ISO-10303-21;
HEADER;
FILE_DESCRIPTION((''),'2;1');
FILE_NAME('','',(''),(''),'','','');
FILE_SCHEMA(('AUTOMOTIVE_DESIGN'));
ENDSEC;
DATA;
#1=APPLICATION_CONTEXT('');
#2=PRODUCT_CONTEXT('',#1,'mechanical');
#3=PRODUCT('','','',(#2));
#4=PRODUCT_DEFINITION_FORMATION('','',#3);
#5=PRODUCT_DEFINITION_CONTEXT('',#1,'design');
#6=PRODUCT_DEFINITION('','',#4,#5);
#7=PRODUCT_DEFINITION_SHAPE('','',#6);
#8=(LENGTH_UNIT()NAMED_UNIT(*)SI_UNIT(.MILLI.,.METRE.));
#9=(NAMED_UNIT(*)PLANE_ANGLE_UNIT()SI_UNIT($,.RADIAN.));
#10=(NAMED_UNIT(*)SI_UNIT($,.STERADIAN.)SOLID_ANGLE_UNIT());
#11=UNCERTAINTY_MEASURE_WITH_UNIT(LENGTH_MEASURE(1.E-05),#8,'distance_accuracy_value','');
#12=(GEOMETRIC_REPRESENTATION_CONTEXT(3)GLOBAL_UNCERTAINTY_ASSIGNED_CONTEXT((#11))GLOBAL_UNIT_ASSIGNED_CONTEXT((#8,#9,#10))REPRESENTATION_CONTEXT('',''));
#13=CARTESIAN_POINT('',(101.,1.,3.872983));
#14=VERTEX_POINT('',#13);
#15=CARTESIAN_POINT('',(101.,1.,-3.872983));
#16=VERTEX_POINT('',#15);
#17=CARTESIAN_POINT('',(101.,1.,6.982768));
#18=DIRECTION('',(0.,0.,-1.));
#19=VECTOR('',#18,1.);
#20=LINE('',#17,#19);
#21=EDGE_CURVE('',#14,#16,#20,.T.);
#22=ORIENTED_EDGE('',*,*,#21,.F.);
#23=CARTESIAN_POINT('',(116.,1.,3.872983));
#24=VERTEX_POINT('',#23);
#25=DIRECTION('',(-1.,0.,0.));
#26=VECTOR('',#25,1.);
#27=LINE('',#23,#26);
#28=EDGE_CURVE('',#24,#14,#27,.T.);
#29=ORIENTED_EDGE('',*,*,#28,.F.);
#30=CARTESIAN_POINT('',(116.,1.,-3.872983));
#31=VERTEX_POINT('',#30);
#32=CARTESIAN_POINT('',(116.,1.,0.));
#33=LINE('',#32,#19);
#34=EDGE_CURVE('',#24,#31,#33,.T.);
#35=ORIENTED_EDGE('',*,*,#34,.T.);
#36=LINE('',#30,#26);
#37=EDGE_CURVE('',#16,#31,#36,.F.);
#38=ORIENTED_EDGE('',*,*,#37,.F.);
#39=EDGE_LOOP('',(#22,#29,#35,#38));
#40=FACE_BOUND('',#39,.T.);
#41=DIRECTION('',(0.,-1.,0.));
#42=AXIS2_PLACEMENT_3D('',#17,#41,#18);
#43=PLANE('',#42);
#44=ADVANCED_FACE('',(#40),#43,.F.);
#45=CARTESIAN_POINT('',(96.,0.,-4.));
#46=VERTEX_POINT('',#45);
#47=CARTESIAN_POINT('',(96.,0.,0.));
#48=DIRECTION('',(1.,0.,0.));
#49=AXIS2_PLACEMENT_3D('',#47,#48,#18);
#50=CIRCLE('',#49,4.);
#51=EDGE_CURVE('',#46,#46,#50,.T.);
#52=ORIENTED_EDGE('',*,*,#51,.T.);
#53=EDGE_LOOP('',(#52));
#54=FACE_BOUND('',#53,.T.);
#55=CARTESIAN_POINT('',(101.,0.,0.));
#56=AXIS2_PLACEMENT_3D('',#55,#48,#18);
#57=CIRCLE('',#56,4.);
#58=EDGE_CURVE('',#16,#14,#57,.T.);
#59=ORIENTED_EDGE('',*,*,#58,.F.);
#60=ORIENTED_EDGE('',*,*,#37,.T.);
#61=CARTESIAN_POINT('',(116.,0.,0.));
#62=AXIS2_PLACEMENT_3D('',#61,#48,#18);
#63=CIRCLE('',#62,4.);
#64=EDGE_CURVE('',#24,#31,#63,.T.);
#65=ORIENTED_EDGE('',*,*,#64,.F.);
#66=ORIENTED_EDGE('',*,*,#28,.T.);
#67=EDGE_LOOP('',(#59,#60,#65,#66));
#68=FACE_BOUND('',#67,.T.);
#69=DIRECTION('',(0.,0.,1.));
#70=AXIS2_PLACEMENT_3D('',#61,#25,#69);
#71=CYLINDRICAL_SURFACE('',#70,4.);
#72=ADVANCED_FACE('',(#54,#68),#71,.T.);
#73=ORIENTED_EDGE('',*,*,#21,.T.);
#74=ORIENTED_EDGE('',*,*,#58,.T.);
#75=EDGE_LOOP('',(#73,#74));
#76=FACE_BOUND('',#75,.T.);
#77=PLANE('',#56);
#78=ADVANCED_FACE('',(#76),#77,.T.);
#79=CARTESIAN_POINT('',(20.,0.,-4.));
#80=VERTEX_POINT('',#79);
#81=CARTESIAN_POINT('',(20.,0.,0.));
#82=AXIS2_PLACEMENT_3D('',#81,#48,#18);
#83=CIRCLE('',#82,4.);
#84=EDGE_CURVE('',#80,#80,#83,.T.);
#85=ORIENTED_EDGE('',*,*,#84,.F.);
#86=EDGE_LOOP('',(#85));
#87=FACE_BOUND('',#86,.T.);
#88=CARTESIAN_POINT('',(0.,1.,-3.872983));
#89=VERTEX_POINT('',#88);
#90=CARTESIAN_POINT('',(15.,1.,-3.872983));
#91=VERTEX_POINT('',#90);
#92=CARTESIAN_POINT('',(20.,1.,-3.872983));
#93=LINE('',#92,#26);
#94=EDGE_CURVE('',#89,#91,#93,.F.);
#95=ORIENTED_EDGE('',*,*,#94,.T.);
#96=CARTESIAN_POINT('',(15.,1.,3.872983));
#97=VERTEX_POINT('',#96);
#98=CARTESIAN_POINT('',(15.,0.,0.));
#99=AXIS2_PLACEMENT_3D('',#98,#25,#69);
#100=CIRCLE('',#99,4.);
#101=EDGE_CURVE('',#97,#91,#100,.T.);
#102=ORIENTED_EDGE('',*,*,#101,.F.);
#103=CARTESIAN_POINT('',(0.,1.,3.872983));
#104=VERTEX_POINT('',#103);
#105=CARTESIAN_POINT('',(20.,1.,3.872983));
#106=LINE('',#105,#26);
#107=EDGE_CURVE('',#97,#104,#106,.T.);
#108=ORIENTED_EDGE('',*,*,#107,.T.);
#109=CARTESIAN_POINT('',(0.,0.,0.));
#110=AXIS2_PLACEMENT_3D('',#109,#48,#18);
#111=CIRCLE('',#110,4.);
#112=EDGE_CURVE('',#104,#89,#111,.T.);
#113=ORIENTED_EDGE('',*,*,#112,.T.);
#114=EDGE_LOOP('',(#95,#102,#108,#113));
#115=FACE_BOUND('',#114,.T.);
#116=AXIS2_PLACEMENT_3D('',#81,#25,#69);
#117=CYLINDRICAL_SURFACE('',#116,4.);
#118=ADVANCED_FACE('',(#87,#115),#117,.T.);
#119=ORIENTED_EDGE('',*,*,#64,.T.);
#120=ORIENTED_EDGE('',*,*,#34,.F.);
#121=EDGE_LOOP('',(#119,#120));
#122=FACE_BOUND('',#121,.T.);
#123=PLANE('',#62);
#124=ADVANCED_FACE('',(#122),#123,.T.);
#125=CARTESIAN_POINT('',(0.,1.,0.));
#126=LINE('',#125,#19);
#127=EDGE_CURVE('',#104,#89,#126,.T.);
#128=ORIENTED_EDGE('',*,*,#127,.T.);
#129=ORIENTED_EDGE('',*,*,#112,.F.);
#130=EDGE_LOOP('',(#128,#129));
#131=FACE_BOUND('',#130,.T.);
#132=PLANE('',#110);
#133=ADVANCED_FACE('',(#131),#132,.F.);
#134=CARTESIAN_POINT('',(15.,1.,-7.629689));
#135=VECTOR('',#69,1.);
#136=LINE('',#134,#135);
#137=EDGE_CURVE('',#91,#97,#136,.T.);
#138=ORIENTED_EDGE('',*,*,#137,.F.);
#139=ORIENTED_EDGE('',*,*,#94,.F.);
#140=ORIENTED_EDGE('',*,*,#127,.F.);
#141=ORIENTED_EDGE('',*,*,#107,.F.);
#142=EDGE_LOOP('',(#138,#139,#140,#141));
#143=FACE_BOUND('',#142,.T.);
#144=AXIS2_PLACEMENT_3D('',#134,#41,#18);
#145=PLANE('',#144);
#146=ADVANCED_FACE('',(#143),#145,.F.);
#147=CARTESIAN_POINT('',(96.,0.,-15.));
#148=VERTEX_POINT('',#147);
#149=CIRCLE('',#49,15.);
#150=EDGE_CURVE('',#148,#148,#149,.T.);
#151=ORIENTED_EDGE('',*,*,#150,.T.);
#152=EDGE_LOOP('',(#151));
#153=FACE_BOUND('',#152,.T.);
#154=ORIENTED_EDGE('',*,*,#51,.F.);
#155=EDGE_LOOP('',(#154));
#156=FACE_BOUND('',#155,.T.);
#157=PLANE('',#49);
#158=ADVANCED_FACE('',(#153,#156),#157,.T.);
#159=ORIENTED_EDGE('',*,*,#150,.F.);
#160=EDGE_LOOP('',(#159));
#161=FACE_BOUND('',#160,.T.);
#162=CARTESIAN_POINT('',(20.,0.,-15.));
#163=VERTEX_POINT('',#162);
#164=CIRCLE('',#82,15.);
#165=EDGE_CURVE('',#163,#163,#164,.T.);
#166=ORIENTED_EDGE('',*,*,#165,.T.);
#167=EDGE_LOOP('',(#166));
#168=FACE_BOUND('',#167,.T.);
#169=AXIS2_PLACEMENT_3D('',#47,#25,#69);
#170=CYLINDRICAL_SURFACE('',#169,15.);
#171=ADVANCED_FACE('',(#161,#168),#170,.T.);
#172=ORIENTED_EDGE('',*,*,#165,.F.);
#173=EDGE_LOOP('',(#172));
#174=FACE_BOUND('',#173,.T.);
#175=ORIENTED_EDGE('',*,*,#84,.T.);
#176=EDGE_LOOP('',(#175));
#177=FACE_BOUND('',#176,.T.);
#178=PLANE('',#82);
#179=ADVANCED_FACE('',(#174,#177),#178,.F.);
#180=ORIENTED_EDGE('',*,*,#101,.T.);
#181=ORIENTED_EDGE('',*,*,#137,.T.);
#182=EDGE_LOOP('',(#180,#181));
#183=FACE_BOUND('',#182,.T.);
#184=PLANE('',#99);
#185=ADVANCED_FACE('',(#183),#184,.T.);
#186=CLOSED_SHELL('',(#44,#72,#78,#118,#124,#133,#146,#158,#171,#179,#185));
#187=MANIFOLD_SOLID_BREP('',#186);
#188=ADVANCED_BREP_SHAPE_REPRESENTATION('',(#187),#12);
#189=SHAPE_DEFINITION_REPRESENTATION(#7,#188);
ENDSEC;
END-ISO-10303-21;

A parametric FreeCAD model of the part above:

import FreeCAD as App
import Part
import Sketcher

V = App.Vector

doc = App.newDocument("Part")
body = doc.addObject("PartDesign::Body", "Body")

# Sketch on YZ plane
sketch1 = doc.addObject("Sketcher::SketchObject", "Sketch")
body.addObject(sketch1)
sketch1.AttachmentSupport = (doc.YZ_Plane, [""])
sketch1.MapMode = "FlatFace"
sketch1.addGeometry(Part.Circle(V(0, 0, 0), V(0, 0, 1), 4), False)
sketch1.addConstraint([
    Sketcher.Constraint("Coincident", 0, 3, -1, 1),
    Sketcher.Constraint("Diameter", 0, 8.0),
])
pad1 = doc.addObject("PartDesign::Pad", "Pad")
body.addObject(pad1)
pad1.Profile = sketch1
pad1.Length = 20

# Sketch on YZ plane
sketch2 = doc.addObject("Sketcher::SketchObject", "Sketch001")
body.addObject(sketch2)
sketch2.AttachmentSupport = (doc.YZ_Plane, [""])
sketch2.MapMode = "FlatFace"
sketch2.AttachmentOffset = App.Placement(V(0, 0, 20), App.Rotation())
sketch2.addGeometry(Part.Circle(V(0, 0, 0), V(0, 0, 1), 15), False)
sketch2.addConstraint([
    Sketcher.Constraint("Coincident", 0, 3, -1, 1),
    Sketcher.Constraint("Diameter", 0, 30.0),
])
pad2 = doc.addObject("PartDesign::Pad", "Pad001")
body.addObject(pad2)
pad2.Profile = sketch2
pad2.Length = 76

# Sketch on YZ plane
sketch3 = doc.addObject("Sketcher::SketchObject", "Sketch002")
body.addObject(sketch3)
sketch3.AttachmentSupport = (doc.YZ_Plane, [""])
sketch3.MapMode = "FlatFace"
sketch3.AttachmentOffset = App.Placement(V(0, 0, 96), App.Rotation())
sketch3.addGeometry(Part.Circle(V(0, 0, 0), V(0, 0, 1), 4), False)
sketch3.addConstraint([
    Sketcher.Constraint("Coincident", 0, 3, -1, 1),
    Sketcher.Constraint("Diameter", 0, 8.0),
])
pad3 = doc.addObject("PartDesign::Pad", "Pad002")
body.addObject(pad3)
pad3.Profile = sketch3
pad3.Length = 20

# Sketch on YZ plane
sketch4 = doc.addObject("Sketcher::SketchObject", "Sketch003")
body.addObject(sketch4)
sketch4.AttachmentSupport = (doc.YZ_Plane, [""])
sketch4.MapMode = "FlatFace"
sketch4.addGeometry([
    Part.LineSegment(V(4, -7.6, 0), V(1, -7.6, 0)),
    Part.LineSegment(V(1, -7.6, 0), V(1, 7.3, 0)),
    Part.LineSegment(V(1, 7.3, 0), V(4, 7.3, 0)),
    Part.LineSegment(V(4, 7.3, 0), V(4, -7.6, 0)),
], False)
sketch4.addConstraint([
    Sketcher.Constraint("Coincident", 0, 2, 1, 1),
    Sketcher.Constraint("Coincident", 1, 2, 2, 1),
    Sketcher.Constraint("Coincident", 2, 2, 3, 1),
    Sketcher.Constraint("Coincident", 3, 2, 0, 1),
    Sketcher.Constraint("Horizontal", 0),
    Sketcher.Constraint("Vertical", 1),
    Sketcher.Constraint("Horizontal", 2),
    Sketcher.Constraint("Vertical", 3),
    Sketcher.Constraint("DistanceX", 0, 2, 0, 1, 3.0),
    Sketcher.Constraint("DistanceX", -1, 1, 0, 2, 1.0),
    Sketcher.Constraint("DistanceY", 1, 1, 1, 2, 14.978284),
    Sketcher.Constraint("DistanceY", 0, 2, -1, 1, 7.629689),
])
pocket1 = doc.addObject("PartDesign::Pocket", "Pocket")
body.addObject(pocket1)
pocket1.Profile = sketch4
pocket1.Length = 15
pocket1.Reversed = True

# Sketch on YZ plane
sketch5 = doc.addObject("Sketcher::SketchObject", "Sketch004")
body.addObject(sketch5)
sketch5.AttachmentSupport = (doc.YZ_Plane, [""])
sketch5.MapMode = "FlatFace"
sketch5.AttachmentOffset = App.Placement(V(0, 0, 116), App.Rotation())
sketch5.addGeometry([
    Part.LineSegment(V(4, 7, 0), V(1, 7, 0)),
    Part.LineSegment(V(1, 7, 0), V(1, -7.3, 0)),
    Part.LineSegment(V(1, -7.3, 0), V(4, -7.3, 0)),
    Part.LineSegment(V(4, -7.3, 0), V(4, 7, 0)),
], False)
sketch5.addConstraint([
    Sketcher.Constraint("Coincident", 0, 2, 1, 1),
    Sketcher.Constraint("Coincident", 1, 2, 2, 1),
    Sketcher.Constraint("Coincident", 2, 2, 3, 1),
    Sketcher.Constraint("Coincident", 3, 2, 0, 1),
    Sketcher.Constraint("Horizontal", 0),
    Sketcher.Constraint("Vertical", 1),
    Sketcher.Constraint("Horizontal", 2),
    Sketcher.Constraint("Vertical", 3),
    Sketcher.Constraint("DistanceX", 0, 2, 0, 1, 3.0),
    Sketcher.Constraint("DistanceX", -1, 1, 0, 2, 1.0),
    Sketcher.Constraint("DistanceY", 1, 2, 1, 1, 14.281634),
    Sketcher.Constraint("DistanceY", -1, 1, 0, 2, 6.982768),
])
pocket2 = doc.addObject("PartDesign::Pocket", "Pocket001")
body.addObject(pocket2)
pocket2.Profile = sketch5
pocket2.Length = 15

doc.recompute()
